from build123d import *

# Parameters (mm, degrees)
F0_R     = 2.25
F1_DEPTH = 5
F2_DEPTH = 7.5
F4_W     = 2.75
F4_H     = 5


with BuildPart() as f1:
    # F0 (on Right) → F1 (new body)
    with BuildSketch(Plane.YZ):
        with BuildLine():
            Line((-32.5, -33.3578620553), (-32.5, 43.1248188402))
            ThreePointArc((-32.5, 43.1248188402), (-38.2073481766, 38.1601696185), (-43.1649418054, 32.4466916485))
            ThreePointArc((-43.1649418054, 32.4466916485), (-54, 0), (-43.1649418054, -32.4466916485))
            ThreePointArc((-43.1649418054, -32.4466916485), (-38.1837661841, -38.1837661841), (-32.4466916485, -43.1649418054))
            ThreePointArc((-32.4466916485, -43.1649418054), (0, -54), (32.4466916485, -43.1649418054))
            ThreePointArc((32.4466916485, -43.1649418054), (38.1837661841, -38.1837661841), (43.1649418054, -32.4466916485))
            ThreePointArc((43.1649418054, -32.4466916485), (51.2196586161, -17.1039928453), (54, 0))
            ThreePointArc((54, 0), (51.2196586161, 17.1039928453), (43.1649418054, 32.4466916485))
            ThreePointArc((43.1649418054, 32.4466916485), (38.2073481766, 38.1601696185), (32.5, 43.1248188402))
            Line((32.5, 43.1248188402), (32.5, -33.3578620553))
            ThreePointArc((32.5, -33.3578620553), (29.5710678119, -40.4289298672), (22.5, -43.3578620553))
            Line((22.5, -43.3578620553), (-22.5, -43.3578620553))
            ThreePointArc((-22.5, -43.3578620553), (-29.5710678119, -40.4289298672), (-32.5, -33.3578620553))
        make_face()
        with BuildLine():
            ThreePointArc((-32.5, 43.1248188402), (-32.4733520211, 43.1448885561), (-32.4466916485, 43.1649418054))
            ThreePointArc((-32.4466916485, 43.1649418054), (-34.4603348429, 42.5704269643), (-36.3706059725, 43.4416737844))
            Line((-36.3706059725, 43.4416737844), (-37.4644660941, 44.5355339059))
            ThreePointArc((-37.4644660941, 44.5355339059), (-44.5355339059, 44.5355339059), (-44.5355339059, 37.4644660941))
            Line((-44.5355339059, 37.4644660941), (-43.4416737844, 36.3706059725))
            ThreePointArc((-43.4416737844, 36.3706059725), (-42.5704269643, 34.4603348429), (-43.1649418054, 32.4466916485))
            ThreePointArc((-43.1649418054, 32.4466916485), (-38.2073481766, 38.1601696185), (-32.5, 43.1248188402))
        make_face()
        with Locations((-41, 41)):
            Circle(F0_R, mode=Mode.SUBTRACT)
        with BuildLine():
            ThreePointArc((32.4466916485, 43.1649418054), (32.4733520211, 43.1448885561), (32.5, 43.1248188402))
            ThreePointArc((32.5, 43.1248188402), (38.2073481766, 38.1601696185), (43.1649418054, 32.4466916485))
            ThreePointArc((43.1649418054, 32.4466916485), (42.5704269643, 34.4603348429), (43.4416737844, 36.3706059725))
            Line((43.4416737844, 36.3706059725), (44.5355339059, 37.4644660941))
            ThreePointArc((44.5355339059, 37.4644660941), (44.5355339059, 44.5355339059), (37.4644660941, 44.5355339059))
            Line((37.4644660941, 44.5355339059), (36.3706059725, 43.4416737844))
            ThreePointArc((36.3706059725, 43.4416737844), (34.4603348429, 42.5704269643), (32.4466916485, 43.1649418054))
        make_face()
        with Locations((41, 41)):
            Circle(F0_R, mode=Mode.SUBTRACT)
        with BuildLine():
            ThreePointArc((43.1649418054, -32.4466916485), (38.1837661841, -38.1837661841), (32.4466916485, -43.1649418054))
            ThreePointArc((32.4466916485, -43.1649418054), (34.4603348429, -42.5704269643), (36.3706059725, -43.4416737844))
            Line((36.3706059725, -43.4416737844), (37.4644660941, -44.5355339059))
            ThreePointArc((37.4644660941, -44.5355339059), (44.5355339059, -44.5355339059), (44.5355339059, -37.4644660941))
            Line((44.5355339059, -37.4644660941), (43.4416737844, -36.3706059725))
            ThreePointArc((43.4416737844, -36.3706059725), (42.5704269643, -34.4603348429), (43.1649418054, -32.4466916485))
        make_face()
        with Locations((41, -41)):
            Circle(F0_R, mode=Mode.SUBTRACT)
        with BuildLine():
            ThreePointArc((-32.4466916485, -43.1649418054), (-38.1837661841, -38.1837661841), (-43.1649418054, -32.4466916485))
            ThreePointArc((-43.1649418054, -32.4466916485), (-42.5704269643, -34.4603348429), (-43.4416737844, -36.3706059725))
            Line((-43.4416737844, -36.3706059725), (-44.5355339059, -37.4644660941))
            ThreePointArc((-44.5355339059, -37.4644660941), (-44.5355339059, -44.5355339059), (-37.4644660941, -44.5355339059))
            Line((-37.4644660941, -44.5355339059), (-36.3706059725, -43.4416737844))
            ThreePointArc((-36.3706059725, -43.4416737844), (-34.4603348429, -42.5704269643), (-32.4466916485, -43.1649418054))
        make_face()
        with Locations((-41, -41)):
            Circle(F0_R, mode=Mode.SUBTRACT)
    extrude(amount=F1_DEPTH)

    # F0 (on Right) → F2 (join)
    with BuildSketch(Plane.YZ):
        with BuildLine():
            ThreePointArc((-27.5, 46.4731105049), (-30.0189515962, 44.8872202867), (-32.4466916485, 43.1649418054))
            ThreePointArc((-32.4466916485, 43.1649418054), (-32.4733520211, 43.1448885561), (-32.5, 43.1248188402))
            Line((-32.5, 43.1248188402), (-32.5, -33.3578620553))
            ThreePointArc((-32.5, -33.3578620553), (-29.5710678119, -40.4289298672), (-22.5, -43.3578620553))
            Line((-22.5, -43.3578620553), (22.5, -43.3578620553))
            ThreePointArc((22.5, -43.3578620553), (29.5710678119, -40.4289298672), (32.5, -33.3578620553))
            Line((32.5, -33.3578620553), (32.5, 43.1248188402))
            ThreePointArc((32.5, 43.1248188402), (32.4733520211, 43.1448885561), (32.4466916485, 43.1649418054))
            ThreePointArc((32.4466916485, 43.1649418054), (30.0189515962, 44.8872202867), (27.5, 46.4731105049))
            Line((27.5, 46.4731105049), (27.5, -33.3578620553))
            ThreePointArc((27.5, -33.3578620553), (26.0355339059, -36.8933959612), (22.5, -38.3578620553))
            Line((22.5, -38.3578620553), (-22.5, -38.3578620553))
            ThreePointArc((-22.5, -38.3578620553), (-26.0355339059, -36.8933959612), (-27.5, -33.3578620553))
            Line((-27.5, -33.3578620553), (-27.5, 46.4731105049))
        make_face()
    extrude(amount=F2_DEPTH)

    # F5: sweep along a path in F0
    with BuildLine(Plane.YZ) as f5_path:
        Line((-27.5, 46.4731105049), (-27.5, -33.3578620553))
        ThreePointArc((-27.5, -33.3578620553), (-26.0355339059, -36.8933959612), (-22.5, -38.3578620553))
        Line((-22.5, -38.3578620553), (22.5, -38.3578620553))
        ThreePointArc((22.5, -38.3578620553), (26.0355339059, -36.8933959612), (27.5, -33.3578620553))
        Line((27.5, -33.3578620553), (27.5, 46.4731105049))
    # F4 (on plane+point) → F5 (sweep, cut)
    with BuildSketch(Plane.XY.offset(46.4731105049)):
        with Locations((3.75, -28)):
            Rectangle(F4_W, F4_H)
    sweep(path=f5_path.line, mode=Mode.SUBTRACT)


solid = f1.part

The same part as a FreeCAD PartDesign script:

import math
import FreeCAD as App
import Part
import Sketcher
from FreeCAD import Vector

doc = App.newDocument("Part")
body = doc.addObject("PartDesign::Body", "Body")

# Sketch on YZ plane
sketch1 = body.newObject("Sketcher::SketchObject", "Sketch")
sketch1.AttachmentSupport = (doc.getObject("YZ_Plane"), [""])
sketch1.MapMode = "FlatFace"
sketch1.addGeometry(Part.LineSegment(Vector(-32.5, -33.36, 0), Vector(-32.5, 43.12, 0)), False)
sketch1.addGeometry(Part.ArcOfCircle(Part.Circle(Vector(0, 0, 0), Vector(0, 0, 1), 54), math.radians(126.93), math.radians(127)), False)
sketch1.addGeometry(Part.ArcOfCircle(Part.Circle(Vector(-34.25, 45.56, 0), Vector(0, 0, 1), 3), math.radians(-135), math.radians(-53)), False)
sketch1.addGeometry(Part.LineSegment(Vector(-36.37, 43.44, 0), Vector(-37.46, 44.54, 0)), False)
sketch1.addGeometry(Part.ArcOfCircle(Part.Circle(Vector(-41, 41, 0), Vector(0, 0, 1), 5), math.radians(45), math.radians(225)), False)
sketch1.addGeometry(Part.LineSegment(Vector(-44.54, 37.46, 0), Vector(-43.44, 36.37, 0)), False)
sketch1.addGeometry(Part.ArcOfCircle(Part.Circle(Vector(-45.56, 34.25, 0), Vector(0, 0, 1), 3), math.radians(-37), math.radians(45)), False)
sketch1.addGeometry(Part.ArcOfCircle(Part.Circle(Vector(0, 0, 0), Vector(0, 0, 1), 54), math.radians(143), math.radians(217)), False)
sketch1.addGeometry(Part.ArcOfCircle(Part.Circle(Vector(-45.56, -34.25, 0), Vector(0, 0, 1), 3), math.radians(-45), math.radians(37)), False)
sketch1.addGeometry(Part.LineSegment(Vector(-43.44, -36.37, 0), Vector(-44.54, -37.46, 0)), False)
sketch1.addGeometry(Part.ArcOfCircle(Part.Circle(Vector(-41, -41, 0), Vector(0, 0, 1), 5), math.radians(135), math.radians(315)), False)
sketch1.addGeometry(Part.LineSegment(Vector(-37.46, -44.54, 0), Vector(-36.37, -43.44, 0)), False)
sketch1.addGeometry(Part.ArcOfCircle(Part.Circle(Vector(-34.25, -45.56, 0), Vector(0, 0, 1), 3), math.radians(53), math.radians(135)), False)
sketch1.addGeometry(Part.ArcOfCircle(Part.Circle(Vector(0, 0, 0), Vector(0, 0, 1), 54), math.radians(-127), math.radians(-53)), False)
sketch1.addGeometry(Part.ArcOfCircle(Part.Circle(Vector(34.25, -45.56, 0), Vector(0, 0, 1), 3), math.radians(45), math.radians(127)), False)
sketch1.addGeometry(Part.LineSegment(Vector(36.37, -43.44, 0), Vector(37.46, -44.54, 0)), False)
sketch1.addGeometry(Part.ArcOfCircle(Part.Circle(Vector(41, -41, 0), Vector(0, 0, 1), 5), math.radians(-135), math.radians(45)), False)
sketch1.addGeometry(Part.LineSegment(Vector(44.54, -37.46, 0), Vector(43.44, -36.37, 0)), False)
sketch1.addGeometry(Part.ArcOfCircle(Part.Circle(Vector(45.56, -34.25, 0), Vector(0, 0, 1), 3), math.radians(143), math.radians(225)), False)
sketch1.addGeometry(Part.ArcOfCircle(Part.Circle(Vector(0, 0, 0), Vector(0, 0, 1), 54), math.radians(-37), math.radians(0)), False)
sketch1.addGeometry(Part.ArcOfCircle(Part.Circle(Vector(0, 0, 0), Vector(0, 0, 1), 54), math.radians(0), math.radians(37)), False)
sketch1.addGeometry(Part.ArcOfCircle(Part.Circle(Vector(45.56, 34.25, 0), Vector(0, 0, 1), 3), math.radians(135), math.radians(217)), False)
sketch1.addGeometry(Part.LineSegment(Vector(43.44, 36.37, 0), Vector(44.54, 37.46, 0)), False)
sketch1.addGeometry(Part.ArcOfCircle(Part.Circle(Vector(41, 41, 0), Vector(0, 0, 1), 5), math.radians(-45), math.radians(135)), False)
sketch1.addGeometry(Part.LineSegment(Vector(37.46, 44.54, 0), Vector(36.37, 43.44, 0)), False)
sketch1.addGeometry(Part.ArcOfCircle(Part.Circle(Vector(34.25, 45.56, 0), Vector(0, 0, 1), 3), math.radians(-127), math.radians(-45)), False)
sketch1.addGeometry(Part.ArcOfCircle(Part.Circle(Vector(0, 0, 0), Vector(0, 0, 1), 54), math.radians(53), math.radians(53.07)), False)
sketch1.addGeometry(Part.LineSegment(Vector(32.5, 43.12, 0), Vector(32.5, -33.36, 0)), False)
sketch1.addGeometry(Part.ArcOfCircle(Part.Circle(Vector(22.5, -33.36, 0), Vector(0, 0, 1), 10), math.radians(-90), math.radians(0)), False)
sketch1.addGeometry(Part.LineSegment(Vector(22.5, -43.36, 0), Vector(-22.5, -43.36, 0)), False)
sketch1.addGeometry(Part.ArcOfCircle(Part.Circle(Vector(-22.5, -33.36, 0), Vector(0, 0, 1), 10), math.radians(180), math.radians(270)), False)
sketch1.addGeometry(Part.Circle(Vector(-41, -41, 0), Vector(0, 0, 1), 2.25), False)
sketch1.addGeometry(Part.Circle(Vector(41, -41, 0), Vector(0, 0, 1), 2.25), False)
sketch1.addGeometry(Part.Circle(Vector(-41, 41, 0), Vector(0, 0, 1), 2.25), False)
sketch1.addGeometry(Part.Circle(Vector(41, 41, 0), Vector(0, 0, 1), 2.25), False)
sketch1.addConstraint(Sketcher.Constraint("Coincident", 0, 2, 1, 2))
sketch1.addConstraint(Sketcher.Constraint("Tangent", 1, 1, 2, 2))
sketch1.addConstraint(Sketcher.Constraint("Tangent", 2, 1, 3, 1))
sketch1.addConstraint(Sketcher.Constraint("Tangent", 3, 2, 4, 1))
sketch1.addConstraint(Sketcher.Constraint("Tangent", 4, 2, 5, 1))
sketch1.addConstraint(Sketcher.Constraint("Tangent", 5, 2, 6, 2))
sketch1.addConstraint(Sketcher.Constraint("Tangent", 6, 1, 7, 1))
sketch1.addConstraint(Sketcher.Constraint("Tangent", 7, 2, 8, 2))
sketch1.addConstraint(Sketcher.Constraint("Tangent", 8, 1, 9, 1))
sketch1.addConstraint(Sketcher.Constraint("Tangent", 9, 2, 10, 1))
sketch1.addConstraint(Sketcher.Constraint("Tangent", 10, 2, 11, 1))
sketch1.addConstraint(Sketcher.Constraint("Tangent", 11, 2, 12, 2))
sketch1.addConstraint(Sketcher.Constraint("Tangent", 12, 1, 13, 1))
sketch1.addConstraint(Sketcher.Constraint("Tangent", 13, 2, 14, 2))
sketch1.addConstraint(Sketcher.Constraint("Tangent", 14, 1, 15, 1))
sketch1.addConstraint(Sketcher.Constraint("Tangent", 15, 2, 16, 1))
sketch1.addConstraint(Sketcher.Constraint("Tangent", 16, 2, 17, 1))
sketch1.addConstraint(Sketcher.Constraint("Tangent", 17, 2, 18, 2))
sketch1.addConstraint(Sketcher.Constraint("Tangent", 18, 1, 19, 1))
sketch1.addConstraint(Sketcher.Constraint("Tangent", 19, 2, 20, 1))
sketch1.addConstraint(Sketcher.Constraint("Tangent", 20, 2, 21, 2))
sketch1.addConstraint(Sketcher.Constraint("Tangent", 21, 1, 22, 1))
sketch1.addConstraint(Sketcher.Constraint("Tangent", 22, 2, 23, 1))
sketch1.addConstraint(Sketcher.Constraint("Tangent", 23, 2, 24, 1))
sketch1.addConstraint(Sketcher.Constraint("Tangent", 24, 2, 25, 2))
sketch1.addConstraint(Sketcher.Constraint("Tangent", 25, 1, 26, 2))
sketch1.addConstraint(Sketcher.Constraint("Coincident", 26, 1, 27, 1))
sketch1.addConstraint(Sketcher.Constraint("Tangent", 27, 2, 28, 2))
sketch1.addConstraint(Sketcher.Constraint("Tangent", 28, 1, 29, 1))
sketch1.addConstraint(Sketcher.Constraint("Tangent", 29, 2, 30, 2))
sketch1.addConstraint(Sketcher.Constraint("Tangent", 30, 1, 0, 1))
sketch1.addConstraint(Sketcher.Constraint("Vertical", 0))
sketch1.addConstraint(Sketcher.Constraint("Vertical", 27))
sketch1.addConstraint(Sketcher.Constraint("Horizontal", 29))
sketch1.addConstraint(Sketcher.Constraint("Coincident", 7, 3, -1, 1))
sketch1.addConstraint(Sketcher.Constraint("Coincident", 13, 3, -1, 1))
sketch1.addConstraint(Sketcher.Constraint("Coincident", 19, 3, -1, 1))
sketch1.addConstraint(Sketcher.Constraint("Coincident", 31, 3, 10, 3))
sketch1.addConstraint(Sketcher.Constraint("Coincident", 32, 3, 16, 3))
sketch1.addConstraint(Sketcher.Constraint("Coincident", 33, 3, 4, 3))
sketch1.addConstraint(Sketcher.Constraint("Coincident", 34, 3, 23, 3))
sketch1.addConstraint(Sketcher.Constraint("Equal", 2, 6))
sketch1.addConstraint(Sketcher.Constraint("Equal", 6, 8))
sketch1.addConstraint(Sketcher.Constraint("Equal", 4, 10))
sketch1.addConstraint(Sketcher.Constraint("Equal", 8, 12))
sketch1.addConstraint(Sketcher.Constraint("Equal", 7, 13))
sketch1.addConstraint(Sketcher.Constraint("Equal", 12, 14))
sketch1.addConstraint(Sketcher.Constraint("Equal", 10, 16))
sketch1.addConstraint(Sketcher.Constraint("Equal", 14, 18))
sketch1.addConstraint(Sketcher.Constraint("Equal", 13, 19))
sketch1.addConstraint(Sketcher.Constraint("Equal", 19, 20))
sketch1.addConstraint(Sketcher.Constraint("Equal", 18, 21))
sketch1.addConstraint(Sketcher.Constraint("Equal", 16, 23))
sketch1.addConstraint(Sketcher.Constraint("Equal", 21, 25))
sketch1.addConstraint(Sketcher.Constraint("Equal", 1, 26))
sketch1.addConstraint(Sketcher.Constraint("Equal", 28, 30))
sketch1.addConstraint(Sketcher.Constraint("Equal", 31, 32))
sketch1.addConstraint(Sketcher.Constraint("Equal", 32, 33))
sketch1.addConstraint(Sketcher.Constraint("Equal", 33, 34))
sketch1.addConstraint(Sketcher.Constraint("Symmetric", 2, 3, 14, 3, -1, 1))
sketch1.addConstraint(Sketcher.Constraint("Symmetric", 4, 3, 16, 3, -1, 1))
sketch1.addConstraint(Sketcher.Constraint("Symmetric", 10, 3, 23, 3, -1, 1))
sketch1.addConstraint(Sketcher.Constraint("Symmetric", 12, 3, 25, 3, -1, 1))
sketch1.addConstraint(Sketcher.Constraint("Symmetric", 10, 3, 16, 3, -2))
sketch1.addConstraint(Sketcher.Constraint("PointOnObject", 19, 2, -1))
sketch1.addConstraint(Sketcher.Constraint("Parallel", 3, 5))
sketch1.addConstraint(Sketcher.Constraint("Perpendicular", 5, 9))
sketch1.addConstraint(Sketcher.Constraint("Parallel", 9, 11))
sketch1.addConstraint(Sketcher.Constraint("Parallel", 15, 17))
sketch1.addConstraint(Sketcher.Constraint("Perpendicular", 17, 22))
sketch1.addConstraint(Sketcher.Constraint("Horizontal", 12, 3, 14, 3))
sketch1.addConstraint(Sketcher.Constraint("Horizontal", 1, 3, 26, 3))
sketch1.addConstraint(Sketcher.Constraint("Horizontal", 0, 2, 26, 1))
sketch1.addConstraint(Sketcher.Constraint("Equal", 3, 5))
sketch1.addConstraint(Sketcher.Constraint("Radius", 2, 3.0))
sketch1.addConstraint(Sketcher.Constraint("Radius", 4, 5.0))
sketch1.addConstraint(Sketcher.Constraint("Radius", 7, 54.0))
sketch1.addConstraint(Sketcher.Constraint("Radius", 28, 10.0))
sketch1.addConstraint(Sketcher.Constraint("Diameter", 31, 4.5))
sketch1.addConstraint(Sketcher.Constraint("DistanceX", 29, 2, 29, 1, 45.0))
sketch1.addConstraint(Sketcher.Constraint("DistanceX", 4, 3, -1, 1, 41.0))
sketch1.addConstraint(Sketcher.Constraint("Radius", 1, 53.999693))
sketch1.addConstraint(Sketcher.Constraint("DistanceY", 0, 1, 0, 2, 76.482681))
sketch1.addConstraint(Sketcher.Constraint("DistanceX", 2, 3, 1, 3, 34.249101))
pad1 = body.newObject("PartDesign::Pad", "Pad")
pad1.Profile = sketch1
pad1.Length = 5

# Sketch on YZ plane
sketch2 = body.newObject("Sketcher::SketchObject", "Sketch001")
sketch2.AttachmentSupport = (doc.getObject("YZ_Plane"), [""])
sketch2.MapMode = "FlatFace"
sketch2.addGeometry(Part.ArcOfCircle(Part.Circle(Vector(0, 0, 0), Vector(0, 0, 1), 54), math.radians(120.61), math.radians(126.93)), False)
sketch2.addGeometry(Part.ArcOfCircle(Part.Circle(Vector(0, 0, 0), Vector(0, 0, 1), 54), math.radians(126.93), math.radians(127)), False)
sketch2.addGeometry(Part.LineSegment(Vector(-32.5, 43.12, 0), Vector(-32.5, -33.36, 0)), False)
sketch2.addGeometry(Part.ArcOfCircle(Part.Circle(Vector(-22.5, -33.36, 0), Vector(0, 0, 1), 10), math.radians(180), math.radians(270)), False)
sketch2.addGeometry(Part.LineSegment(Vector(-22.5, -43.36, 0), Vector(22.5, -43.36, 0)), False)
sketch2.addGeometry(Part.ArcOfCircle(Part.Circle(Vector(22.5, -33.36, 0), Vector(0, 0, 1), 10), math.radians(-90), math.radians(0)), False)
sketch2.addGeometry(Part.LineSegment(Vector(32.5, -33.36, 0), Vector(32.5, 43.12, 0)), False)
sketch2.addGeometry(Part.ArcOfCircle(Part.Circle(Vector(0, 0, 0), Vector(0, 0, 1), 54), math.radians(53), math.radians(53.07)), False)
sketch2.addGeometry(Part.ArcOfCircle(Part.Circle(Vector(0, 0, 0), Vector(0, 0, 1), 54), math.radians(53.07), math.radians(59.39)), False)
sketch2.addGeometry(Part.LineSegment(Vector(27.5, 46.47, 0), Vector(27.5, -33.36, 0)), False)
sketch2.addGeometry(Part.ArcOfCircle(Part.Circle(Vector(22.5, -33.36, 0), Vector(0, 0, 1), 5), math.radians(-90), math.radians(0)), False)
sketch2.addGeometry(Part.LineSegment(Vector(22.5, -38.36, 0), Vector(-22.5, -38.36, 0)), False)
sketch2.addGeometry(Part.ArcOfCircle(Part.Circle(Vector(-22.5, -33.36, 0), Vector(0, 0, 1), 5), math.radians(180), math.radians(270)), False)
sketch2.addGeometry(Part.LineSegment(Vector(-27.5, -33.36, 0), Vector(-27.5, 46.47, 0)), False)
sketch2.addConstraint(Sketcher.Constraint("Tangent", 0, 2, 1, 1))
sketch2.addConstraint(Sketcher.Constraint("Coincident", 1, 2, 2, 1))
sketch2.addConstraint(Sketcher.Constraint("Tangent", 2, 2, 3, 1))
sketch2.addConstraint(Sketcher.Constraint("Tangent", 3, 2, 4, 1))
sketch2.addConstraint(Sketcher.Constraint("Tangent", 4, 2, 5, 1))
sketch2.addConstraint(Sketcher.Constraint("Tangent", 5, 2, 6, 1))
sketch2.addConstraint(Sketcher.Constraint("Coincident", 6, 2, 7, 1))
sketch2.addConstraint(Sketcher.Constraint("Tangent", 7, 2, 8, 1))
sketch2.addConstraint(Sketcher.Constraint("Coincident", 8, 2, 9, 1))
sketch2.addConstraint(Sketcher.Constraint("Tangent", 9, 2, 10, 2))
sketch2.addConstraint(Sketcher.Constraint("Tangent", 10, 1, 11, 1))
sketch2.addConstraint(Sketcher.Constraint("Tangent", 11, 2, 12, 2))
sketch2.addConstraint(Sketcher.Constraint("Tangent", 12, 1, 13, 1))
sketch2.addConstraint(Sketcher.Constraint("Coincident", 13, 2, 0, 1))
sketch2.addConstraint(Sketcher.Constraint("Vertical", 2))
sketch2.addConstraint(Sketcher.Constraint("Horizontal", 4))
sketch2.addConstraint(Sketcher.Constraint("Vertical", 6))
sketch2.addConstraint(Sketcher.Constraint("Vertical", 9))
sketch2.addConstraint(Sketcher.Constraint("Horizontal", 11))
sketch2.addConstraint(Sketcher.Constraint("Vertical", 13))
sketch2.addConstraint(Sketcher.Constraint("Coincident", 0, 3, -1, 1))
sketch2.addConstraint(Sketcher.Constraint("Coincident", 8, 3, -1, 1))
sketch2.addConstraint(Sketcher.Constraint("Coincident", 10, 3, 5, 3))
sketch2.addConstraint(Sketcher.Constraint("Coincident", 12, 3, 3, 3))
sketch2.addConstraint(Sketcher.Constraint("Equal", 3, 5))
sketch2.addConstraint(Sketcher.Constraint("Equal", 1, 7))
sketch2.addConstraint(Sketcher.Constraint("Equal", 0, 8))
sketch2.addConstraint(Sketcher.Constraint("Horizontal", 1, 2, 6, 2))
sketch2.addConstraint(Sketcher.Constraint("Horizontal", 0, 2, 7, 2))
sketch2.addConstraint(Sketcher.Constraint("Radius", 0, 54.0))
sketch2.addConstraint(Sketcher.Constraint("Radius", 3, 10.0))
sketch2.addConstraint(Sketcher.Constraint("Radius", 10, 5.0))
sketch2.addConstraint(Sketcher.Constraint("DistanceX", 4, 1, 4, 2, 45.0))
sketch2.addConstraint(Sketcher.Constraint("Radius", 1, 53.999693))
sketch2.addConstraint(Sketcher.Constraint("DistanceY", 2, 2, 2, 1, 76.482681))
sketch2.addConstraint(Sketcher.Constraint("DistanceX", 0, 2, -1, 1, 32.446692))
pad2 = body.newObject("PartDesign::Pad", "Pad001")
pad2.Profile = sketch2
pad2.Length = 7.5

# Sketch on XY plane
sketch3 = body.newObject("Sketcher::SketchObject", "Sketch002")
sketch3.AttachmentSupport = (doc.getObject("XY_Plane"), [""])
sketch3.MapMode = "FlatFace"
sketch3.AttachmentOffset = App.Placement(Vector(0, 0, 46.473111), App.Rotation())
sketch3.addGeometry(Part.LineSegment(Vector(2.4, -25.5, 0), Vector(2.4, -30.5, 0)), False)
sketch3.addGeometry(Part.LineSegment(Vector(2.4, -30.5, 0), Vector(5.1, -30.5, 0)), False)
sketch3.addGeometry(Part.LineSegment(Vector(5.1, -30.5, 0), Vector(5.1, -25.5, 0)), False)
sketch3.addGeometry(Part.LineSegment(Vector(5.1, -25.5, 0), Vector(2.4, -25.5, 0)), False)
sketch3.addConstraint(Sketcher.Constraint("Coincident", 0, 2, 1, 1))
sketch3.addConstraint(Sketcher.Constraint("Coincident", 1, 2, 2, 1))
sketch3.addConstraint(Sketcher.Constraint("Coincident", 2, 2, 3, 1))
sketch3.addConstraint(Sketcher.Constraint("Coincident", 3, 2, 0, 1))
sketch3.addConstraint(Sketcher.Constraint("Vertical", 0))
sketch3.addConstraint(Sketcher.Constraint("Horizontal", 1))
sketch3.addConstraint(Sketcher.Constraint("Vertical", 2))
sketch3.addConstraint(Sketcher.Constraint("Horizontal", 3))
sketch3.addConstraint(Sketcher.Constraint("DistanceY", 0, 2, 0, 1, 5.0))
sketch3.addConstraint(Sketcher.Constraint("DistanceX", 1, 1, 1, 2, 2.75))
sketch3.addConstraint(Sketcher.Constraint("DistanceY", 0, 2, -1, 1, 30.5))
sketch3.addConstraint(Sketcher.Constraint("DistanceX", -1, 1, 0, 2, 2.375))

# Sketch on YZ plane
sketch4 = body.newObject("Sketcher::SketchObject", "Sketch003")
sketch4.AttachmentSupport = (doc.getObject("YZ_Plane"), [""])
sketch4.MapMode = "FlatFace"
sketch4.addGeometry(Part.LineSegment(Vector(-28, 46, 0), Vector(-28, -33, 0)), False)
sketch4.addGeometry(Part.ArcOfCircle(Part.Circle(Vector(-22, -33, 0), Vector(0, 0, 1), 5), math.radians(180), math.radians(270)), False)
sketch4.addGeometry(Part.LineSegment(Vector(-22, -38, 0), Vector(22, -38, 0)), False)
sketch4.addGeometry(Part.ArcOfCircle(Part.Circle(Vector(22, -33, 0), Vector(0, 0, 1), 5), math.radians(-90), math.radians(0)), False)
sketch4.addGeometry(Part.LineSegment(Vector(28, -33, 0), Vector(28, 46, 0)), False)
sketch4.addConstraint(Sketcher.Constraint("Tangent", 0, 2, 1, 1))
sketch4.addConstraint(Sketcher.Constraint("Tangent", 1, 2, 2, 1))
sketch4.addConstraint(Sketcher.Constraint("Tangent", 2, 2, 3, 1))
sketch4.addConstraint(Sketcher.Constraint("Tangent", 3, 2, 4, 1))
sketch4.addConstraint(Sketcher.Constraint("Vertical", 0))
sketch4.addConstraint(Sketcher.Constraint("Horizontal", 2))
sketch4.addConstraint(Sketcher.Constraint("Vertical", 4))
sketch4.addConstraint(Sketcher.Constraint("Equal", 1, 3))
sketch4.addConstraint(Sketcher.Constraint("Symmetric", 0, 1, 4, 2, -2))
sketch4.addConstraint(Sketcher.Constraint("Radius", 1, 5.0))
sketch4.addConstraint(Sketcher.Constraint("DistanceX", 2, 1, 2, 2, 45.0))
sketch4.addConstraint(Sketcher.Constraint("DistanceY", 0, 2, 0, 1, 79.830973))
sketch4.addConstraint(Sketcher.Constraint("DistanceY", -1, 1, 0, 1, 46.473111))
doc.recompute()

subtractivepipe = body.newObject("PartDesign::SubtractivePipe", "SubtractivePipe")
subtractivepipe.Profile = sketch3
subtractivepipe.Spine = (sketch4, ["Edge1", "Edge2", "Edge3", "Edge4", "Edge5"])

doc.recompute()
